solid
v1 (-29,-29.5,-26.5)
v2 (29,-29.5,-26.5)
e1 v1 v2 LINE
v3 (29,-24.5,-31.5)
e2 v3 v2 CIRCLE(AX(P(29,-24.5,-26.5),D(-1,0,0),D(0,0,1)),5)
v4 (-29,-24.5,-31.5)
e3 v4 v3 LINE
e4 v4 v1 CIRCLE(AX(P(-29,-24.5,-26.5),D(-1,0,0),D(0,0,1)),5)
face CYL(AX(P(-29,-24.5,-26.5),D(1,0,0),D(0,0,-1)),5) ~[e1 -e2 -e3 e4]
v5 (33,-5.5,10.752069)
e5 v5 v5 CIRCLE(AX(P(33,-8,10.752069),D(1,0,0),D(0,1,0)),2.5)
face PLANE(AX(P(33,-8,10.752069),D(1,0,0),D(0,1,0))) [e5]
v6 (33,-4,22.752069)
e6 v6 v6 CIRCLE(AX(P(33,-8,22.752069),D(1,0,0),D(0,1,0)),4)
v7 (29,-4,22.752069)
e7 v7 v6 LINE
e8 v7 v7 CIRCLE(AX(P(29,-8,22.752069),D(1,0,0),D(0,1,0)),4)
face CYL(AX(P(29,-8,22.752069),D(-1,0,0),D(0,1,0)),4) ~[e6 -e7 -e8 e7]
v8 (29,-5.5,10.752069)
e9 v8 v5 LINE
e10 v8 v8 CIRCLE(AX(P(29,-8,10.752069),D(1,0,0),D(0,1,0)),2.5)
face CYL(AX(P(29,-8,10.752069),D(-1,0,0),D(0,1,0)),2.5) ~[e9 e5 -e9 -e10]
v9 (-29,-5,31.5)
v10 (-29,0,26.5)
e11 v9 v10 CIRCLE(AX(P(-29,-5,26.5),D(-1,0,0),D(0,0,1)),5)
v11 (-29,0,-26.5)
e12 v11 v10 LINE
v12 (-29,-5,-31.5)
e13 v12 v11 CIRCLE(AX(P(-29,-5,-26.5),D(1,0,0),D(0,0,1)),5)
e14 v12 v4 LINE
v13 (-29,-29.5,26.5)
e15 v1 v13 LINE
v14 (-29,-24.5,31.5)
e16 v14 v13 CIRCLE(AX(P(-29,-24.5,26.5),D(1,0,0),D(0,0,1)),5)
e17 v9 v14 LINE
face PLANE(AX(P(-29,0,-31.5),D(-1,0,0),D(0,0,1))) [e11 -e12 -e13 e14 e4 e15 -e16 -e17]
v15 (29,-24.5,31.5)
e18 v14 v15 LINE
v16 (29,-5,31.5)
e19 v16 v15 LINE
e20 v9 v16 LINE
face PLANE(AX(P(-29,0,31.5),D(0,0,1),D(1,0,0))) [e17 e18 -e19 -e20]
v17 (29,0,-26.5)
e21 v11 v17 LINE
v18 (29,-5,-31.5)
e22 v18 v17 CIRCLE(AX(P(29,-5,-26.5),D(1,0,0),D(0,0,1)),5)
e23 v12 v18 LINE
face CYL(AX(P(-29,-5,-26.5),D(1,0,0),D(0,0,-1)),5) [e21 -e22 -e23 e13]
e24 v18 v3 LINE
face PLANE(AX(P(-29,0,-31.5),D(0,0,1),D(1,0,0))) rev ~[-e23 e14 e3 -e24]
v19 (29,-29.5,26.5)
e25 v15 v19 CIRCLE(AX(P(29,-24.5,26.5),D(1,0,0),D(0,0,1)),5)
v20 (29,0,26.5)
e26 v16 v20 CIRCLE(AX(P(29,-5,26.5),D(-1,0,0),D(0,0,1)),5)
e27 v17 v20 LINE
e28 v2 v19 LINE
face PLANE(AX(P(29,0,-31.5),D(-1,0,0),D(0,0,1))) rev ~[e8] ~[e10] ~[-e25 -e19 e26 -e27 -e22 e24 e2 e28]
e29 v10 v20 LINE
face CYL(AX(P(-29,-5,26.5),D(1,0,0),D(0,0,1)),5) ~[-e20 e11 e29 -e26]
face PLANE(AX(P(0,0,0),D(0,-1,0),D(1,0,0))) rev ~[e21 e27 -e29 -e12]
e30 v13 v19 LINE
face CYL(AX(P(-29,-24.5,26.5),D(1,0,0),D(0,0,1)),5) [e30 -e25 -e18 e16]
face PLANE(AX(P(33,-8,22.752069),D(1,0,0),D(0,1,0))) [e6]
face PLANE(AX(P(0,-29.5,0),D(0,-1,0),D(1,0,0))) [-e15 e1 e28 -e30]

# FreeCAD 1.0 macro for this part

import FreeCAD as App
import Part
import Sketcher
from FreeCAD import Vector
Q = App.Units.Quantity


def edges_at(feature, points):
    """Names of the edges that pass closest to the given points."""
    edges = feature.Shape.Edges
    near = lambda p: min(range(len(edges)), key=lambda i: edges[i].distToShape(Part.Vertex(*p))[0])
    return sorted({f"Edge{near(p) + 1}" for p in points})


def add_polygon(sketch, points):
    """Adds a closed chain of lines whose ends are joined by coincident constraints."""
    first, n = sketch.GeometryCount, len(points)
    for a, b in zip(points, points[1:] + points[:1]):
        sketch.addGeometry(Part.LineSegment(App.Vector(*a, 0), App.Vector(*b, 0)), False)
    for i in range(n):
        sketch.addConstraint(Sketcher.Constraint("Coincident", first + i, 2, first + (i + 1) % n, 1))

doc = App.newDocument("Part")
body = doc.addObject("PartDesign::Body", "Body")

sketch1 = doc.addObject("Sketcher::SketchObject", "Sketch")
body.addObject(sketch1)
sketch1.AttachmentSupport = (doc.XZ_Plane, [""])
sketch1.MapMode = "FlatFace"
add_polygon(sketch1, [(-29, 32), (-29, -32), (29, -32), (29, 32)])
sketch1.addConstraint(Sketcher.Constraint("Vertical", 0))
sketch1.addConstraint(Sketcher.Constraint("Horizontal", 1))
sketch1.addConstraint(Sketcher.Constraint("Vertical", 2))
sketch1.addConstraint(Sketcher.Constraint("Horizontal", 3))
sketch1.addConstraint(Sketcher.Constraint("Symmetric", 0, 2, 2, 2, -1, 1))
sketch1.addConstraint(Sketcher.Constraint("DistanceX", 1, 1, 1, 2, Q("58 mm")))
sketch1.addConstraint(Sketcher.Constraint("DistanceY", 0, 2, 0, 1, Q("63 mm")))
pad1 = doc.addObject("PartDesign::Pad", "Pad")
body.addObject(pad1)
pad1.Profile = sketch1
pad1.Length = 29.5
doc.recompute()

fillet = doc.addObject("PartDesign::Fillet", "Fillet")
body.addObject(fillet)
fillet.Base = (pad1, edges_at(pad1, [
    (0, 0, 31.5),
    (0, 0, -31.5),
    (0, -29.5, -31.5),
    (0, -29.5, 31.5),
]))
fillet.Radius = 5

sketch2 = doc.addObject("Sketcher::SketchObject", "Sketch001")
body.addObject(sketch2)
sketch2.AttachmentSupport = (doc.YZ_Plane, [""])
sketch2.MapMode = "FlatFace"
sketch2.AttachmentOffset = App.Placement(Vector(0, 0, 29), App.Rotation())
sketch2.addGeometry(Part.Circle(Vector(-8, 22.8, 0), Vector(0, 0, 1), 4), False)
sketch2.addGeometry(Part.Circle(Vector(-8, 10.8, 0), Vector(0, 0, 1), 2.5), False)
sketch2.addConstraint(Sketcher.Constraint("Vertical", 0, 3, 1, 3))
sketch2.addConstraint(Sketcher.Constraint("Diameter", 0, Q("8 mm")))
sketch2.addConstraint(Sketcher.Constraint("Diameter", 1, Q("5 mm")))
sketch2.addConstraint(Sketcher.Constraint("DistanceX", 0, 3, -1, 1, Q("8 mm")))
sketch2.addConstraint(Sketcher.Constraint("DistanceY", 1, 3, 0, 3, Q("12 mm")))
sketch2.addConstraint(Sketcher.Constraint("DistanceY", -1, 1, 0, 3, Q("22.752069 mm")))
pad2 = doc.addObject("PartDesign::Pad", "Pad001")
body.addObject(pad2)
pad2.Profile = sketch2
pad2.Length = 4

doc.recompute()
